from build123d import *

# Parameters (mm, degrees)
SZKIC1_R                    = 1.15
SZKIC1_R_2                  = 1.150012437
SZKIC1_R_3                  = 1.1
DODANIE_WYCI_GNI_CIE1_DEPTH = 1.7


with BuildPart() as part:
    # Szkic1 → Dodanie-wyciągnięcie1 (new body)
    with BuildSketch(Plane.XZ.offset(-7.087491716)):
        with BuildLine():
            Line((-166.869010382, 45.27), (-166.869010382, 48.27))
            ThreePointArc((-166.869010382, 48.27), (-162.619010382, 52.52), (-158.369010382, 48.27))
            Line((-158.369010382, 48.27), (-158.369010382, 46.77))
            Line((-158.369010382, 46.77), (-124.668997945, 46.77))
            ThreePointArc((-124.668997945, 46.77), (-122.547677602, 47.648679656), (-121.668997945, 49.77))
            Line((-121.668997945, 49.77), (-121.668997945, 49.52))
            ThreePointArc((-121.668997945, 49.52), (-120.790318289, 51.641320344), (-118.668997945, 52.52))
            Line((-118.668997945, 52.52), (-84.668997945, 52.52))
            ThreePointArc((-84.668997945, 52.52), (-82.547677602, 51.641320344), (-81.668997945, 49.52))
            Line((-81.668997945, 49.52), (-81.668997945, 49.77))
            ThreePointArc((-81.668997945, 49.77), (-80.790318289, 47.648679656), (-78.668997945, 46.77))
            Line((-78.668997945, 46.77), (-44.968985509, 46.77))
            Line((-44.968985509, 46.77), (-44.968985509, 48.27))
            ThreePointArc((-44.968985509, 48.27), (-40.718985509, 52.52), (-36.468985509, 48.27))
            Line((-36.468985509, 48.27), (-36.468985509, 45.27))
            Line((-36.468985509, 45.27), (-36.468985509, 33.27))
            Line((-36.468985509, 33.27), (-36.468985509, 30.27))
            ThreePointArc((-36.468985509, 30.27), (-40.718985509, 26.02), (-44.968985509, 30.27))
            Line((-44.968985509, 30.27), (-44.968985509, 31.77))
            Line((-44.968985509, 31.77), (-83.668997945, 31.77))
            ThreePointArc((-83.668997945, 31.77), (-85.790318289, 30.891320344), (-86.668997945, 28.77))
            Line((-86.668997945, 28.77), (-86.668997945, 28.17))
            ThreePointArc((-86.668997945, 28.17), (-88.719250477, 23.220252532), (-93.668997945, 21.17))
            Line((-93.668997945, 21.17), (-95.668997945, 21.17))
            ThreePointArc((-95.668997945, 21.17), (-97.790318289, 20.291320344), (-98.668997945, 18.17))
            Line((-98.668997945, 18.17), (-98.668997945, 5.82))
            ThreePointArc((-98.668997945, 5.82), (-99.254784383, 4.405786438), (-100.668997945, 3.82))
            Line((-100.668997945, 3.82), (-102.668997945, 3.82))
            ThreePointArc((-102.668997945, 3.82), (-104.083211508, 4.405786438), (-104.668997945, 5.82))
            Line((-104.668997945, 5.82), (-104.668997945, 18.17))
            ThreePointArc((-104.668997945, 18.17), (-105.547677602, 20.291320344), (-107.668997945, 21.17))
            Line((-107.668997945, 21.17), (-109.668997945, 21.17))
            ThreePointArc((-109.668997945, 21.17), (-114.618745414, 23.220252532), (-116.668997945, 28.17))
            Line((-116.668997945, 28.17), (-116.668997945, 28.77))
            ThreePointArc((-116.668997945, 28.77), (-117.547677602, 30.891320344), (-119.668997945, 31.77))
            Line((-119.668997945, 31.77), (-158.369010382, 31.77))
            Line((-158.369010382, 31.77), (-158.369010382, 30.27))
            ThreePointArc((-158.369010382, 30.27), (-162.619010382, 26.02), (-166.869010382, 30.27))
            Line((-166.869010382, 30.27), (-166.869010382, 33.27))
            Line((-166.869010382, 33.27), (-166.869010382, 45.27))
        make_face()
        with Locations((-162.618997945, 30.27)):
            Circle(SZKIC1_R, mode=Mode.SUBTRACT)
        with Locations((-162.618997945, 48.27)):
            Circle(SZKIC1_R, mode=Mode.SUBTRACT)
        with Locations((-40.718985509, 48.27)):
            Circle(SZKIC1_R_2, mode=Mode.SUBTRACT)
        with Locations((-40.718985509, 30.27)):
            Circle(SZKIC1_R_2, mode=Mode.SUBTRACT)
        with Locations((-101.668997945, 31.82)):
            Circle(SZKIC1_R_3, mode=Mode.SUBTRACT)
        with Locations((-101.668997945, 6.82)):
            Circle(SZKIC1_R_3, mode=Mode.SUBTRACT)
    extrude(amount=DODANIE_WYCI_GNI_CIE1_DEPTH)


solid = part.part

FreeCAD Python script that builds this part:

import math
import FreeCAD as App
import Part
import Sketcher

V = App.Vector
Q = App.Units.Quantity

doc = App.newDocument("Part")
body = doc.addObject("PartDesign::Body", "Body")

sketch1 = body.newObject("Sketcher::SketchObject", "Sketch")
sketch1.AttachmentSupport = (doc.getObject("XZ_Plane"), [""])
sketch1.MapMode = "FlatFace"
sketch1.AttachmentOffset = App.Placement(V(0, 0, -7.087492), App.Rotation())
sketch1.addGeometry(Part.ArcOfCircle(Part.Circle(V(-162.62, 48.27, 0), V(0, 0, 1), 4.25), math.radians(0), math.radians(180)), False)
sketch1.addGeometry(Part.LineSegment(V(-166.87, 48.27, 0), V(-166.87, 30.27, 0)), False)
sketch1.addGeometry(Part.ArcOfCircle(Part.Circle(V(-162.62, 30.27, 0), V(0, 0, 1), 4.25), math.radians(180), math.radians(360)), False)
sketch1.addGeometry(Part.LineSegment(V(-158.37, 30.27, 0), V(-158.37, 31.77, 0)), False)
sketch1.addGeometry(Part.LineSegment(V(-158.37, 31.77, 0), V(-119.67, 31.77, 0)), False)
sketch1.addGeometry(Part.ArcOfCircle(Part.Circle(V(-119.67, 28.77, 0), V(0, 0, 1), 3), math.radians(0), math.radians(90)), False)
sketch1.addGeometry(Part.LineSegment(V(-116.67, 28.77, 0), V(-116.67, 28.17, 0)), False)
sketch1.addGeometry(Part.ArcOfCircle(Part.Circle(V(-109.67, 28.17, 0), V(0, 0, 1), 7), math.radians(180), math.radians(270)), False)
sketch1.addGeometry(Part.LineSegment(V(-109.67, 21.17, 0), V(-107.67, 21.17, 0)), False)
sketch1.addGeometry(Part.ArcOfCircle(Part.Circle(V(-107.67, 18.17, 0), V(0, 0, 1), 3), math.radians(0), math.radians(90)), False)
sketch1.addGeometry(Part.LineSegment(V(-104.67, 18.17, 0), V(-104.67, 5.82, 0)), False)
sketch1.addGeometry(Part.ArcOfCircle(Part.Circle(V(-102.67, 5.82, 0), V(0, 0, 1), 2), math.radians(180), math.radians(270)), False)
sketch1.addGeometry(Part.LineSegment(V(-102.67, 3.82, 0), V(-100.67, 3.82, 0)), False)
sketch1.addGeometry(Part.ArcOfCircle(Part.Circle(V(-100.67, 5.82, 0), V(0, 0, 1), 2), math.radians(-90), math.radians(0)), False)
sketch1.addGeometry(Part.LineSegment(V(-98.67, 5.82, 0), V(-98.67, 18.17, 0)), False)
sketch1.addGeometry(Part.ArcOfCircle(Part.Circle(V(-95.67, 18.17, 0), V(0, 0, 1), 3), math.radians(90), math.radians(180)), False)
sketch1.addGeometry(Part.LineSegment(V(-95.67, 21.17, 0), V(-93.67, 21.17, 0)), False)
sketch1.addGeometry(Part.ArcOfCircle(Part.Circle(V(-93.67, 28.17, 0), V(0, 0, 1), 7), math.radians(-90), math.radians(0)), False)
sketch1.addGeometry(Part.LineSegment(V(-86.67, 28.17, 0), V(-86.67, 28.77, 0)), False)
sketch1.addGeometry(Part.ArcOfCircle(Part.Circle(V(-83.67, 28.77, 0), V(0, 0, 1), 3), math.radians(90), math.radians(180)), False)
sketch1.addGeometry(Part.LineSegment(V(-83.67, 31.77, 0), V(-44.97, 31.77, 0)), False)
sketch1.addGeometry(Part.LineSegment(V(-44.97, 31.77, 0), V(-44.97, 30.27, 0)), False)
sketch1.addGeometry(Part.ArcOfCircle(Part.Circle(V(-40.72, 30.27, 0), V(0, 0, 1), 4.25), math.radians(180), math.radians(360)), False)
sketch1.addGeometry(Part.LineSegment(V(-36.47, 30.27, 0), V(-36.47, 48.27, 0)), False)
sketch1.addGeometry(Part.ArcOfCircle(Part.Circle(V(-40.72, 48.27, 0), V(0, 0, 1), 4.25), math.radians(0), math.radians(180)), False)
sketch1.addGeometry(Part.LineSegment(V(-44.97, 48.27, 0), V(-44.97, 46.77, 0)), False)
sketch1.addGeometry(Part.LineSegment(V(-44.97, 46.77, 0), V(-78.67, 46.77, 0)), False)
sketch1.addGeometry(Part.ArcOfCircle(Part.Circle(V(-78.67, 49.77, 0), V(0, 0, 1), 3), math.radians(180), math.radians(270)), False)
sketch1.addGeometry(Part.LineSegment(V(-81.67, 49.77, 0), V(-81.67, 49.52, 0)), False)
sketch1.addGeometry(Part.ArcOfCircle(Part.Circle(V(-84.67, 49.52, 0), V(0, 0, 1), 3), math.radians(0), math.radians(90)), False)
sketch1.addGeometry(Part.LineSegment(V(-84.67, 52.52, 0), V(-118.67, 52.52, 0)), False)
sketch1.addGeometry(Part.ArcOfCircle(Part.Circle(V(-118.67, 49.52, 0), V(0, 0, 1), 3), math.radians(90), math.radians(180)), False)
sketch1.addGeometry(Part.LineSegment(V(-121.67, 49.52, 0), V(-121.67, 49.77, 0)), False)
sketch1.addGeometry(Part.ArcOfCircle(Part.Circle(V(-124.67, 49.77, 0), V(0, 0, 1), 3), math.radians(-90), math.radians(0)), False)
sketch1.addGeometry(Part.LineSegment(V(-124.67, 46.77, 0), V(-158.37, 46.77, 0)), False)
sketch1.addGeometry(Part.LineSegment(V(-158.37, 46.77, 0), V(-158.37, 48.27, 0)), False)
sketch1.addGeometry(Part.Circle(V(-101.67, 6.82, 0), V(0, 0, 1), 1.1), False)
sketch1.addGeometry(Part.Circle(V(-40.72, 30.27, 0), V(0, 0, 1), 1.15), False)
sketch1.addGeometry(Part.Circle(V(-40.72, 48.27, 0), V(0, 0, 1), 1.15), False)
sketch1.addGeometry(Part.Circle(V(-101.67, 31.82, 0), V(0, 0, 1), 1.1), False)
sketch1.addGeometry(Part.Circle(V(-162.62, 30.27, 0), V(0, 0, 1), 1.15), False)
sketch1.addGeometry(Part.Circle(V(-162.62, 48.27, 0), V(0, 0, 1), 1.15), False)
sketch1.addConstraint(Sketcher.Constraint("Tangent", 0, 2, 1, 1))
sketch1.addConstraint(Sketcher.Constraint("Tangent", 1, 2, 2, 1))
sketch1.addConstraint(Sketcher.Constraint("Tangent", 2, 2, 3, 1))
sketch1.addConstraint(Sketcher.Constraint("Coincident", 3, 2, 4, 1))
sketch1.addConstraint(Sketcher.Constraint("Tangent", 4, 2, 5, 2))
sketch1.addConstraint(Sketcher.Constraint("Tangent", 5, 1, 6, 1))
sketch1.addConstraint(Sketcher.Constraint("Tangent", 6, 2, 7, 1))
sketch1.addConstraint(Sketcher.Constraint("Tangent", 7, 2, 8, 1))
sketch1.addConstraint(Sketcher.Constraint("Tangent", 8, 2, 9, 2))
sketch1.addConstraint(Sketcher.Constraint("Tangent", 9, 1, 10, 1))
sketch1.addConstraint(Sketcher.Constraint("Tangent", 10, 2, 11, 1))
sketch1.addConstraint(Sketcher.Constraint("Tangent", 11, 2, 12, 1))
sketch1.addConstraint(Sketcher.Constraint("Tangent", 12, 2, 13, 1))
sketch1.addConstraint(Sketcher.Constraint("Tangent", 13, 2, 14, 1))
sketch1.addConstraint(Sketcher.Constraint("Tangent", 14, 2, 15, 2))
sketch1.addConstraint(Sketcher.Constraint("Tangent", 15, 1, 16, 1))
sketch1.addConstraint(Sketcher.Constraint("Tangent", 16, 2, 17, 1))
sketch1.addConstraint(Sketcher.Constraint("Tangent", 17, 2, 18, 1))
sketch1.addConstraint(Sketcher.Constraint("Tangent", 18, 2, 19, 2))
sketch1.addConstraint(Sketcher.Constraint("Tangent", 19, 1, 20, 1))
sketch1.addConstraint(Sketcher.Constraint("Coincident", 20, 2, 21, 1))
sketch1.addConstraint(Sketcher.Constraint("Tangent", 21, 2, 22, 1))
sketch1.addConstraint(Sketcher.Constraint("Tangent", 22, 2, 23, 1))
sketch1.addConstraint(Sketcher.Constraint("Tangent", 23, 2, 24, 1))
sketch1.addConstraint(Sketcher.Constraint("Tangent", 24, 2, 25, 1))
sketch1.addConstraint(Sketcher.Constraint("Coincident", 25, 2, 26, 1))
sketch1.addConstraint(Sketcher.Constraint("Tangent", 26, 2, 27, 2))
sketch1.addConstraint(Sketcher.Constraint("Tangent", 27, 1, 28, 1))
sketch1.addConstraint(Sketcher.Constraint("Tangent", 28, 2, 29, 1))
sketch1.addConstraint(Sketcher.Constraint("Tangent", 29, 2, 30, 1))
sketch1.addConstraint(Sketcher.Constraint("Tangent", 30, 2, 31, 1))
sketch1.addConstraint(Sketcher.Constraint("Tangent", 31, 2, 32, 1))
sketch1.addConstraint(Sketcher.Constraint("Tangent", 32, 2, 33, 2))
sketch1.addConstraint(Sketcher.Constraint("Tangent", 33, 1, 34, 1))
sketch1.addConstraint(Sketcher.Constraint("Coincident", 34, 2, 35, 1))
sketch1.addConstraint(Sketcher.Constraint("Tangent", 35, 2, 0, 1))
sketch1.addConstraint(Sketcher.Constraint("Vertical", 1))
sketch1.addConstraint(Sketcher.Constraint("Vertical", 3))
sketch1.addConstraint(Sketcher.Constraint("Horizontal", 4))
sketch1.addConstraint(Sketcher.Constraint("Vertical", 6))
sketch1.addConstraint(Sketcher.Constraint("Horizontal", 8))
sketch1.addConstraint(Sketcher.Constraint("Vertical", 10))
sketch1.addConstraint(Sketcher.Constraint("Horizontal", 12))
sketch1.addConstraint(Sketcher.Constraint("Vertical", 14))
sketch1.addConstraint(Sketcher.Constraint("Horizontal", 16))
sketch1.addConstraint(Sketcher.Constraint("Vertical", 18))
sketch1.addConstraint(Sketcher.Constraint("Horizontal", 20))
sketch1.addConstraint(Sketcher.Constraint("Vertical", 21))
sketch1.addConstraint(Sketcher.Constraint("Vertical", 23))
sketch1.addConstraint(Sketcher.Constraint("Vertical", 25))
sketch1.addConstraint(Sketcher.Constraint("Horizontal", 26))
sketch1.addConstraint(Sketcher.Constraint("Vertical", 28))
sketch1.addConstraint(Sketcher.Constraint("Horizontal", 30))
sketch1.addConstraint(Sketcher.Constraint("Vertical", 32))
sketch1.addConstraint(Sketcher.Constraint("Horizontal", 34))
sketch1.addConstraint(Sketcher.Constraint("Vertical", 35))
sketch1.addConstraint(Sketcher.Constraint("Coincident", 37, 3, 22, 3))
sketch1.addConstraint(Sketcher.Constraint("Coincident", 38, 3, 24, 3))
sketch1.addConstraint(Sketcher.Constraint("Equal", 0, 2))
sketch1.addConstraint(Sketcher.Constraint("Equal", 5, 9))
sketch1.addConstraint(Sketcher.Constraint("Equal", 11, 13))
sketch1.addConstraint(Sketcher.Constraint("Equal", 9, 15))
sketch1.addConstraint(Sketcher.Constraint("Equal", 7, 17))
sketch1.addConstraint(Sketcher.Constraint("Equal", 15, 19))
sketch1.addConstraint(Sketcher.Constraint("Equal", 2, 22))
sketch1.addConstraint(Sketcher.Constraint("Equal", 22, 24))
sketch1.addConstraint(Sketcher.Constraint("Equal", 19, 27))
sketch1.addConstraint(Sketcher.Constraint("Equal", 27, 29))
sketch1.addConstraint(Sketcher.Constraint("Equal", 29, 31))
sketch1.addConstraint(Sketcher.Constraint("Equal", 31, 33))
sketch1.addConstraint(Sketcher.Constraint("Equal", 37, 38))
sketch1.addConstraint(Sketcher.Constraint("Equal", 36, 39))
sketch1.addConstraint(Sketcher.Constraint("Equal", 40, 41))
sketch1.addConstraint(Sketcher.Constraint("Horizontal", 9, 3, 15, 3))
sketch1.addConstraint(Sketcher.Constraint("Horizontal", 5, 3, 19, 3))
sketch1.addConstraint(Sketcher.Constraint("Horizontal", 2, 3, 22, 3))
sketch1.addConstraint(Sketcher.Constraint("Horizontal", 0, 3, 24, 3))
sketch1.addConstraint(Sketcher.Constraint("Horizontal", 27, 3, 33, 3))
sketch1.addConstraint(Sketcher.Constraint("Horizontal", 37, 3, 40, 3))
sketch1.addConstraint(Sketcher.Constraint("Horizontal", 38, 3, 41, 3))
sketch1.addConstraint(Sketcher.Constraint("Vertical", 36, 3, 39, 3))
sketch1.addConstraint(Sketcher.Constraint("Vertical", 40, 3, 41, 3))
sketch1.addConstraint(Sketcher.Constraint("Equal", 8, 12))
sketch1.addConstraint(Sketcher.Constraint("Equal", 12, 16))
sketch1.addConstraint(Sketcher.Constraint("Equal", 4, 20))
sketch1.addConstraint(Sketcher.Constraint("Equal", 26, 34))
sketch1.addConstraint(Sketcher.Constraint("Equal", 21, 25))
sketch1.addConstraint(Sketcher.Constraint("Radius", 5, Q("3 mm")))
sketch1.addConstraint(Sketcher.Constraint("Radius", 7, Q("7 mm")))
sketch1.addConstraint(Sketcher.Constraint("Radius", 11, Q("2 mm")))
sketch1.addConstraint(Sketcher.Constraint("Diameter", 36, Q("2.2 mm")))
sketch1.addConstraint(Sketcher.Constraint("Diameter", 40, Q("2.3 mm")))
sketch1.addConstraint(Sketcher.Constraint("DistanceX", 8, 1, 8, 2, Q("2 mm")))
sketch1.addConstraint(Sketcher.Constraint("DistanceX", 30, 2, 30, 1, Q("34 mm")))
sketch1.addConstraint(Sketcher.Constraint("DistanceY", 1, 2, 1, 1, Q("18 mm")))
sketch1.addConstraint(Sketcher.Constraint("Radius", 0, Q("4.25 mm")))
sketch1.addConstraint(Sketcher.Constraint("DistanceY", 3, 1, 3, 2, Q("1.5 mm")))
sketch1.addConstraint(Sketcher.Constraint("DistanceY", 6, 2, 6, 1, Q("0.6 mm")))
sketch1.addConstraint(Sketcher.Constraint("DistanceX", 36, 3, 13, 3, Q("1 mm")))
sketch1.addConstraint(Sketcher.Constraint("DistanceY", 13, 3, 36, 3, Q("1 mm")))
sketch1.addConstraint(Sketcher.Constraint("DistanceY", 10, 2, 10, 1, Q("12.35 mm")))
sketch1.addConstraint(Sketcher.Constraint("DistanceY", 28, 2, 28, 1, Q("0.25 mm")))
sketch1.addConstraint(Sketcher.Constraint("DistanceY", -1, 1, 0, 3, Q("48.27 mm")))
sketch1.addConstraint(Sketcher.Constraint("DistanceY", -1, 1, 39, 3, Q("31.82 mm")))
sketch1.addConstraint(Sketcher.Constraint("DistanceX", 40, 3, 33, 3, Q("37.95 mm")))
sketch1.addConstraint(Sketcher.Constraint("Diameter", 37, Q("2.300025 mm")))
sketch1.addConstraint(Sketcher.Constraint("DistanceX", 4, 1, 4, 2, Q("38.700012 mm")))
sketch1.addConstraint(Sketcher.Constraint("DistanceX", 0, 3, -1, 1, Q("162.61901 mm")))
pad1 = body.newObject("PartDesign::Pad", "Pad")
pad1.Profile = sketch1
pad1.Length = 1.7

doc.recompute()
